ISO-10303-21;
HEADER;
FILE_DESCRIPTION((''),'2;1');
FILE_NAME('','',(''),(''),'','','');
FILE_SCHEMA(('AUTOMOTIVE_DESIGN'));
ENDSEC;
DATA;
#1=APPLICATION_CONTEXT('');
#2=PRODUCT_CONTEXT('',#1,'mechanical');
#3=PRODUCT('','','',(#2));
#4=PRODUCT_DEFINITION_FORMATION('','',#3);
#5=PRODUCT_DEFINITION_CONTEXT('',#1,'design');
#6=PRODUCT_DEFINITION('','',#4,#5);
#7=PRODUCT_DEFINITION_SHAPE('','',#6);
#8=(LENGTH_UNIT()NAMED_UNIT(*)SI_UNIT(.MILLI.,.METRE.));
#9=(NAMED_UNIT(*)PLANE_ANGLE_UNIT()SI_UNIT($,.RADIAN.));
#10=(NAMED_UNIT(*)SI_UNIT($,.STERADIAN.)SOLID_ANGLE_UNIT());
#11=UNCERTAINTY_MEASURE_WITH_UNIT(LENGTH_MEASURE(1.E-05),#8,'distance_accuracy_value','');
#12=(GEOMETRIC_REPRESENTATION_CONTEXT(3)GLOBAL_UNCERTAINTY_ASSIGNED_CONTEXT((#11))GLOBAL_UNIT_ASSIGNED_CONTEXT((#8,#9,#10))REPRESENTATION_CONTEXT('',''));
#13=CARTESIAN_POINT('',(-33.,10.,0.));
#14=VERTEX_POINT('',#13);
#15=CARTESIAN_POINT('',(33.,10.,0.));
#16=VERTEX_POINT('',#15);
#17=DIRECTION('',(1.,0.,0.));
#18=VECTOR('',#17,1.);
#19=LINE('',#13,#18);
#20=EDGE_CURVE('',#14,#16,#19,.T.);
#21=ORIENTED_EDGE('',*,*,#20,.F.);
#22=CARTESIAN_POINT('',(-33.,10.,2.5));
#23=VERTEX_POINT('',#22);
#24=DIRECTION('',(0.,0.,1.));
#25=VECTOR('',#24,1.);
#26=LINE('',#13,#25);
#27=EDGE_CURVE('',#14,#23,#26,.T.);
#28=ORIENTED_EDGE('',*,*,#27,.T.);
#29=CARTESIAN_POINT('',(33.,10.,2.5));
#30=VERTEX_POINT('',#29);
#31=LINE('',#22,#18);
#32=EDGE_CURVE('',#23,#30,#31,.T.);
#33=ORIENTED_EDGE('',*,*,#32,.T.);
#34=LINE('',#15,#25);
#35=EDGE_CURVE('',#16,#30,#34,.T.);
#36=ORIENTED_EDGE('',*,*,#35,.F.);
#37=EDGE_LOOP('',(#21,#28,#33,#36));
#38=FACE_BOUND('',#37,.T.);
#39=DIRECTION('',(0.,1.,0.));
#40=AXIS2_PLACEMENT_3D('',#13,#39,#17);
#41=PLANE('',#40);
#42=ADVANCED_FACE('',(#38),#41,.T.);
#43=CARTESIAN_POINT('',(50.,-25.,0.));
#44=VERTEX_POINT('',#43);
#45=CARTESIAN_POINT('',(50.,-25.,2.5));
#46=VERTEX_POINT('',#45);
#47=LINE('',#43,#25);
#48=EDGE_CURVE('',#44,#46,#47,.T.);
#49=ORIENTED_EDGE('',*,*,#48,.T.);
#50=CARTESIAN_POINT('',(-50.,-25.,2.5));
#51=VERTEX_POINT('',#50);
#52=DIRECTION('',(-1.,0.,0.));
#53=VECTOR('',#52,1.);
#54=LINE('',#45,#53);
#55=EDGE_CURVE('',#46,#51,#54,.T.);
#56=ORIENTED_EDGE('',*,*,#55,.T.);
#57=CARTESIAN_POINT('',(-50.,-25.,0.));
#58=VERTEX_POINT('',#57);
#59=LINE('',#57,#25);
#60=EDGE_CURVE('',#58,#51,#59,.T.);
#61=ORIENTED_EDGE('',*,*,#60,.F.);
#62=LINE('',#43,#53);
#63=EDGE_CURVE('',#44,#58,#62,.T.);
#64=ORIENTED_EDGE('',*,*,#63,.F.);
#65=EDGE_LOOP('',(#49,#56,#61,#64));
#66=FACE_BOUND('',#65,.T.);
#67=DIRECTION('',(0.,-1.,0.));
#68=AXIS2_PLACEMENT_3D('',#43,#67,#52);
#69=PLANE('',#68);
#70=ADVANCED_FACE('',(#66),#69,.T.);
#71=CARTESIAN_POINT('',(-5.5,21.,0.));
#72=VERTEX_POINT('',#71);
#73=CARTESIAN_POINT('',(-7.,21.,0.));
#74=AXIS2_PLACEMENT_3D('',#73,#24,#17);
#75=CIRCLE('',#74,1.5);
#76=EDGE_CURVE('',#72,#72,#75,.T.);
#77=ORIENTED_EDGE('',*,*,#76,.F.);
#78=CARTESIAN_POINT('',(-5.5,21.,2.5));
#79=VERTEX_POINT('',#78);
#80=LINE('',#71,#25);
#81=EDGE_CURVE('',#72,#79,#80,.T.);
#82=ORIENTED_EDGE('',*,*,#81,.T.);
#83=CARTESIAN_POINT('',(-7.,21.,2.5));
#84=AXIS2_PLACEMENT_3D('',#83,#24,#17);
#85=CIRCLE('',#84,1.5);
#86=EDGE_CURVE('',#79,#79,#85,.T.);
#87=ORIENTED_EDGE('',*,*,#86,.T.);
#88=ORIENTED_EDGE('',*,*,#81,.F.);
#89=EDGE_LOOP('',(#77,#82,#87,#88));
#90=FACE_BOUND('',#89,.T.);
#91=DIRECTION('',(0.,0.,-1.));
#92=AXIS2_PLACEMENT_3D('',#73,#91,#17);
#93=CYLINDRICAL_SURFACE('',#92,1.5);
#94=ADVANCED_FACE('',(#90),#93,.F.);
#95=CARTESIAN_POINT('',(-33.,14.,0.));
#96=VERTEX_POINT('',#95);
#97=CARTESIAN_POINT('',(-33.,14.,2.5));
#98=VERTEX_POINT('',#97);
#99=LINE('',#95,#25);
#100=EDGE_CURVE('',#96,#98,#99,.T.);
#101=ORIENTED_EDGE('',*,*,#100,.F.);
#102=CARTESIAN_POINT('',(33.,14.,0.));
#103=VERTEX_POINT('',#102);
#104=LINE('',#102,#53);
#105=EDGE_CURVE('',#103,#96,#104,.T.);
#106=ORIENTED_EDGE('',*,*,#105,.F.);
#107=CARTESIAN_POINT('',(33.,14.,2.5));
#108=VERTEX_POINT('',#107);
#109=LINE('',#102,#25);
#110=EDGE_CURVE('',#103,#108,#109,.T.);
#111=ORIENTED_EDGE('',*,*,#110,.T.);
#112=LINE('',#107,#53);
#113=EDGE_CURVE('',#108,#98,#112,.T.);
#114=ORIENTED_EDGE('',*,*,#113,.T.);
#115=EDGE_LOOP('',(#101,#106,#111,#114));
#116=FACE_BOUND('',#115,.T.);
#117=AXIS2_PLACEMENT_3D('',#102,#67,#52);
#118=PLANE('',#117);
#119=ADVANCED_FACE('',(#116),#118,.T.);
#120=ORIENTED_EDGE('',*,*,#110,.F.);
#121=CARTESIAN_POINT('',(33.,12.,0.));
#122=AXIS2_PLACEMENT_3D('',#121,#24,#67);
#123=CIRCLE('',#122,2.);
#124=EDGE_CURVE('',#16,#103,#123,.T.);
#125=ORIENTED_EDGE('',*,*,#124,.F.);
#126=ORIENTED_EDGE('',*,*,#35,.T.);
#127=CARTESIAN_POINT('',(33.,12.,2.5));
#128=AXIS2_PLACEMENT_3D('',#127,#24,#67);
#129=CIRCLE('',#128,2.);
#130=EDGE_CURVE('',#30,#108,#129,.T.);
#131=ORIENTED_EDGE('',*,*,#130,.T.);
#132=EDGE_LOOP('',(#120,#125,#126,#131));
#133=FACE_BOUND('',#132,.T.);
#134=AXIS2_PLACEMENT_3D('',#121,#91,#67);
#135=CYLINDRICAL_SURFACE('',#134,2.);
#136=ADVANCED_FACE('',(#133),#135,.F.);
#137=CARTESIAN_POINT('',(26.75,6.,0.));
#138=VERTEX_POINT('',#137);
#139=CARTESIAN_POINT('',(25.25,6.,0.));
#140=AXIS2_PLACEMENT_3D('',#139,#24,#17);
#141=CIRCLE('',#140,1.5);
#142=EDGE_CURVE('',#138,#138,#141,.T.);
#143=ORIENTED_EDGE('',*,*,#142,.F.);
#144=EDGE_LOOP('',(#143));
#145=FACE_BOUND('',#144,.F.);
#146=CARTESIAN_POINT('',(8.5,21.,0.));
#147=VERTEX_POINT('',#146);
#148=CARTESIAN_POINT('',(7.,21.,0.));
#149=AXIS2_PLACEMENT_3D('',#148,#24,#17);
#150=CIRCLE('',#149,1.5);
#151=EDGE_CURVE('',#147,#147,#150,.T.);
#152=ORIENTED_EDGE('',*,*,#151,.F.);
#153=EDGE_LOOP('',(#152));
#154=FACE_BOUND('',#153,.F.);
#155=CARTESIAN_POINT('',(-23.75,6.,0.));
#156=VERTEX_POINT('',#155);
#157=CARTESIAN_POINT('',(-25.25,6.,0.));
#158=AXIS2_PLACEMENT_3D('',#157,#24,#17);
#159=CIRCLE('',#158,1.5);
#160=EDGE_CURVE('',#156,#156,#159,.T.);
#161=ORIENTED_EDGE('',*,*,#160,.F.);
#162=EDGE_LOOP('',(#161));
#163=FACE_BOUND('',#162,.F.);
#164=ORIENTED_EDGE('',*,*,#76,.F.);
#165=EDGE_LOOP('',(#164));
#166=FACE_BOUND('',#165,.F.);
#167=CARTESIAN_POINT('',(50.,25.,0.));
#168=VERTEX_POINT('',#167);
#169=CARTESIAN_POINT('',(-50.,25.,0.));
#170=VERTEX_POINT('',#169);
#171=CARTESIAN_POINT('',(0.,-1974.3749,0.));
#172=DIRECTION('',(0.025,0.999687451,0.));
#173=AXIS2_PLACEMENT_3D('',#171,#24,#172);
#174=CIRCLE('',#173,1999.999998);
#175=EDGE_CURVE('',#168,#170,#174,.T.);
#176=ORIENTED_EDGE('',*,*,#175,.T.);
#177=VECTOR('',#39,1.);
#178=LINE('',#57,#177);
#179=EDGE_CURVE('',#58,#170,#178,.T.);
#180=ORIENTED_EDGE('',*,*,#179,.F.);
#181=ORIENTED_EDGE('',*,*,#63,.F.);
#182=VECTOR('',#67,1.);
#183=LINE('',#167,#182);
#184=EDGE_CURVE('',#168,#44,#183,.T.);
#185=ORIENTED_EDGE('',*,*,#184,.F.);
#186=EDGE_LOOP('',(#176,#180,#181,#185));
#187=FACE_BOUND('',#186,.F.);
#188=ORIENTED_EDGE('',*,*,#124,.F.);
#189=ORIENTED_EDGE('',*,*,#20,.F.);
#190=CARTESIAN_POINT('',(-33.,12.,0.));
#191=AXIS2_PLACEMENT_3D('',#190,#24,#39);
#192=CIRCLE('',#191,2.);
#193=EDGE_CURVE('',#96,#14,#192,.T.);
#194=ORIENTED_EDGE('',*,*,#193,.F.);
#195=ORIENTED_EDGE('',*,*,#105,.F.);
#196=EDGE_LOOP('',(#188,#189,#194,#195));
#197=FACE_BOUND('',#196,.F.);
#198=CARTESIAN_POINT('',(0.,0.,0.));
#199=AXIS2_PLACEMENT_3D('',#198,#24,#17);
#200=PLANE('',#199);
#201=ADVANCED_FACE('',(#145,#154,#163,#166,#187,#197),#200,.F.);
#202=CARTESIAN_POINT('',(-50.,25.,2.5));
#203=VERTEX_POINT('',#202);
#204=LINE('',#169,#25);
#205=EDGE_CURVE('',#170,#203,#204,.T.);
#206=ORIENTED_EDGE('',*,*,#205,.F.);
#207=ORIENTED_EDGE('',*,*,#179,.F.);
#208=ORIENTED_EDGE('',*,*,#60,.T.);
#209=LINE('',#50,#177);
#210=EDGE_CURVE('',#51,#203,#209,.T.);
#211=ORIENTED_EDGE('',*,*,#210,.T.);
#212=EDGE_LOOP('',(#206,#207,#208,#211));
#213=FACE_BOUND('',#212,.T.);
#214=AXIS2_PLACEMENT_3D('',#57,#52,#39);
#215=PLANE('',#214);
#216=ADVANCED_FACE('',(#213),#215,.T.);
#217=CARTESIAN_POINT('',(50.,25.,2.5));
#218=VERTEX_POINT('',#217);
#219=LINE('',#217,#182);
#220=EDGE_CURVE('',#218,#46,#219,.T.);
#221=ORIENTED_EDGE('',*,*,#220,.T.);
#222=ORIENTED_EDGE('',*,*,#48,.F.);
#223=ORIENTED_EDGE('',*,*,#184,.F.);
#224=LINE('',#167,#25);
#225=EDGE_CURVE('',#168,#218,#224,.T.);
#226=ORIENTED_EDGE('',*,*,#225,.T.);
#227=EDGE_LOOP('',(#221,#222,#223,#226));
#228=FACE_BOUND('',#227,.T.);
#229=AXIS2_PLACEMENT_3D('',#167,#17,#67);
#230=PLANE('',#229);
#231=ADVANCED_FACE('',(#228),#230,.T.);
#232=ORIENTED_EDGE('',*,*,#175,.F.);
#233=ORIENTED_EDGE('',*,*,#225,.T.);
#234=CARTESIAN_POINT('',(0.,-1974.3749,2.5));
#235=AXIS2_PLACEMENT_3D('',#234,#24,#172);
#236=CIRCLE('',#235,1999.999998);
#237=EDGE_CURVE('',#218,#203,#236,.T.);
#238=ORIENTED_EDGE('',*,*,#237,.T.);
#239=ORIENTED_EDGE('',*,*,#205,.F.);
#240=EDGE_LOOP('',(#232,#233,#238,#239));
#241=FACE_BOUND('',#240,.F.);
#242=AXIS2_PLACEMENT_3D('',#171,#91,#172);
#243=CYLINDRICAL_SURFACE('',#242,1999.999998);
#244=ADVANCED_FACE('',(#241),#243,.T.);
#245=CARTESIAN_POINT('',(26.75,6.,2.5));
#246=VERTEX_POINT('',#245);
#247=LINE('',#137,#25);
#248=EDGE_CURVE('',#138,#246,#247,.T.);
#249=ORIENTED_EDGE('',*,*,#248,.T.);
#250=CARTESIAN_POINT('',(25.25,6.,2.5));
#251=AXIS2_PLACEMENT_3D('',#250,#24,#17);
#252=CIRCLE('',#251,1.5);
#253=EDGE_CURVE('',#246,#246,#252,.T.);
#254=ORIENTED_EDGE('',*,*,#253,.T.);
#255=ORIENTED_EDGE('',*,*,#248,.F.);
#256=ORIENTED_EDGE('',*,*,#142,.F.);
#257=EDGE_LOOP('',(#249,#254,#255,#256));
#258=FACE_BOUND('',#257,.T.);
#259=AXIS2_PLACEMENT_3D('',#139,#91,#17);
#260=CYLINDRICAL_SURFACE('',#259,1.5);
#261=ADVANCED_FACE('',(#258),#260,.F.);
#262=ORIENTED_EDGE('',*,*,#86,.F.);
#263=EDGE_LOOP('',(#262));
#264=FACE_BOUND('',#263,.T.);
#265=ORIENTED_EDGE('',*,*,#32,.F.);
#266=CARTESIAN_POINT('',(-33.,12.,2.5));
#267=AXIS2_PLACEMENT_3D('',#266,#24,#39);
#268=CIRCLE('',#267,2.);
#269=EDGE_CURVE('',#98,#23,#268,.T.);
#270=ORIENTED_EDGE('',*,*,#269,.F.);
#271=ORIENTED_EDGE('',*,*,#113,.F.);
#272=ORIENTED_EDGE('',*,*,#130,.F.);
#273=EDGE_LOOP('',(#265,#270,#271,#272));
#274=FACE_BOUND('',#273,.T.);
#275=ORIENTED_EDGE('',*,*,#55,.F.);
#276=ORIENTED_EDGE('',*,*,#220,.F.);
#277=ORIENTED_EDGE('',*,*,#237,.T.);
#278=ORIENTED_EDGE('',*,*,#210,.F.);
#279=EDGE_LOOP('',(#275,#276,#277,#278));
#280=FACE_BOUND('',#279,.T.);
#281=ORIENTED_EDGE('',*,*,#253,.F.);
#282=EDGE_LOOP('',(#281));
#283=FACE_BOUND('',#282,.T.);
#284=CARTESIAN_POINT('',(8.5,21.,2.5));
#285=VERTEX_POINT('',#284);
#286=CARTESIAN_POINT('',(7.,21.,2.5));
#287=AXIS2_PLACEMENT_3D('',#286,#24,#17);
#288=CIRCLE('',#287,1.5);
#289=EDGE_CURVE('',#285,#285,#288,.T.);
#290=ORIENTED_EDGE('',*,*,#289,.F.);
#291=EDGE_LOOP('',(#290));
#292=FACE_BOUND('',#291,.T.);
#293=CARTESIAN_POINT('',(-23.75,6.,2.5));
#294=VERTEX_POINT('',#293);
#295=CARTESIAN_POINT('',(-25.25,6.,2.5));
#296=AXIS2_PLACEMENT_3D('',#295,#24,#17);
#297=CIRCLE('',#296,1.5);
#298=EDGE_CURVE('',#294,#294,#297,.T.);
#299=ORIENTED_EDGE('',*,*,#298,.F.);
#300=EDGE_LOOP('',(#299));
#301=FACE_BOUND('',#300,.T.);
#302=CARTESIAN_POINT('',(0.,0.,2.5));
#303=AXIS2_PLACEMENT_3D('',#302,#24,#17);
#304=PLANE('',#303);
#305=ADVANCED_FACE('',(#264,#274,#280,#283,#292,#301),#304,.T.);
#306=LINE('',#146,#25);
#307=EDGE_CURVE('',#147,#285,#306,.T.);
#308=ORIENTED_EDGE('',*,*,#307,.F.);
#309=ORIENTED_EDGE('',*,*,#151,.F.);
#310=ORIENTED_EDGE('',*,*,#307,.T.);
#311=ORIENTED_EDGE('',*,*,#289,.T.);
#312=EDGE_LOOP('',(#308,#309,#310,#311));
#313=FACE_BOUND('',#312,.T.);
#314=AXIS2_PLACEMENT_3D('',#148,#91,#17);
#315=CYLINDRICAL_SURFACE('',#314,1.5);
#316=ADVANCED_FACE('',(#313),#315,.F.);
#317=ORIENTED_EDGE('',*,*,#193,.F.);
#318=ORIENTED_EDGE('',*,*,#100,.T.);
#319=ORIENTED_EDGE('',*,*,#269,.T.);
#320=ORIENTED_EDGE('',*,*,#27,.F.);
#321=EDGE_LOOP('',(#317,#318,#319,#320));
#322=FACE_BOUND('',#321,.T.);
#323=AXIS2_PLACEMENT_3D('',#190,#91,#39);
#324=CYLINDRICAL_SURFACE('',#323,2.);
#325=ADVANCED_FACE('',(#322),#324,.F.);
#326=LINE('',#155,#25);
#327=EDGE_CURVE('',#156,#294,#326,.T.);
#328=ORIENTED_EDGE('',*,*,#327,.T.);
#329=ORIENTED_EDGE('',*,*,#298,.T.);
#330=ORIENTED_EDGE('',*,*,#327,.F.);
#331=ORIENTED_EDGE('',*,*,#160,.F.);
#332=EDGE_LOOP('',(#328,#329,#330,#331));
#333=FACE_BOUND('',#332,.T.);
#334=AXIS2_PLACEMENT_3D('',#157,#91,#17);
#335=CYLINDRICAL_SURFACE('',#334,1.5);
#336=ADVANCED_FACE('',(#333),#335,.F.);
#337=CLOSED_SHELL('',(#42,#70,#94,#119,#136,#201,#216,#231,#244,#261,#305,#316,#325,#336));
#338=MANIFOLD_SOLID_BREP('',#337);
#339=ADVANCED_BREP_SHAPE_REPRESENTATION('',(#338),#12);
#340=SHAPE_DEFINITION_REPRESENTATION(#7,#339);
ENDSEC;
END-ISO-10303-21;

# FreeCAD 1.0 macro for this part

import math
import FreeCAD as App
import Part
import Sketcher
from FreeCAD import Vector

doc = App.newDocument("Part")
body = doc.addObject("PartDesign::Body", "Body")

sketch1 = doc.addObject("Sketcher::SketchObject", "Sketch")
body.addObject(sketch1)
sketch1.AttachmentSupport = (doc.XY_Plane, [""])
sketch1.MapMode = "FlatFace"
sketch1.addGeometry([
    Part.ArcOfCircle(Part.Circle(Vector(0, -1974.4, 0), Vector(0, 0, 1), 2000), math.radians(88.57), math.radians(91.43)),
    Part.LineSegment(Vector(-50, 25, 0), Vector(-50, -25, 0)),
    Part.LineSegment(Vector(-50, -25, 0), Vector(50, -25, 0)),
    Part.LineSegment(Vector(50, -25, 0), Vector(50, 25, 0)),
    Part.Circle(Vector(7, 21, 0), Vector(0, 0, 1), 1.5),
    Part.Circle(Vector(-25.2, 6, 0), Vector(0, 0, 1), 1.5),
    Part.Circle(Vector(-7, 21, 0), Vector(0, 0, 1), 1.5),
    Part.LineSegment(Vector(33, 10, 0), Vector(-33, 10, 0)),
    Part.ArcOfCircle(Part.Circle(Vector(-33, 12, 0), Vector(0, 0, 1), 2), math.radians(90), math.radians(270)),
    Part.LineSegment(Vector(-33, 14, 0), Vector(33, 14, 0)),
    Part.ArcOfCircle(Part.Circle(Vector(33, 12, 0), Vector(0, 0, 1), 2), math.radians(-90), math.radians(90)),
    Part.Circle(Vector(25.2, 6, 0), Vector(0, 0, 1), 1.5),
], False)
sketch1.addConstraint([
    Sketcher.Constraint("Coincident", 0, 2, 1, 1),
    Sketcher.Constraint("Coincident", 1, 2, 2, 1),
    Sketcher.Constraint("Coincident", 2, 2, 3, 1),
    Sketcher.Constraint("Coincident", 3, 2, 0, 1),
    Sketcher.Constraint("Tangent", 7, 2, 8, 2),
    Sketcher.Constraint("Tangent", 8, 1, 9, 1),
    Sketcher.Constraint("Tangent", 9, 2, 10, 2),
    Sketcher.Constraint("Tangent", 10, 1, 7, 1),
    Sketcher.Constraint("Vertical", 1),
    Sketcher.Constraint("Horizontal", 2),
    Sketcher.Constraint("Vertical", 3),
    Sketcher.Constraint("Horizontal", 7),
    Sketcher.Constraint("Horizontal", 9),
    Sketcher.Constraint("Equal", 4, 5),
    Sketcher.Constraint("Equal", 5, 6),
    Sketcher.Constraint("Equal", 6, 11),
    Sketcher.Constraint("Symmetric", 1, 2, 3, 2, -1, 1),
    Sketcher.Constraint("Symmetric", 4, 3, 6, 3, -2),
    Sketcher.Constraint("Symmetric", 5, 3, 11, 3, -2),
    Sketcher.Constraint("PointOnObject", 0, 3, -2),
    Sketcher.Constraint("Diameter", 4, 3.0),
    Sketcher.Constraint("Radius", 0, 2000.0),
    Sketcher.Constraint("Radius", 8, 2.0),
    Sketcher.Constraint("DistanceX", 2, 1, 2, 2, 100.0),
    Sketcher.Constraint("DistanceX", 7, 2, 7, 1, 66.0),
    Sketcher.Constraint("DistanceY", 1, 2, 1, 1, 50.0),
    Sketcher.Constraint("DistanceY", -1, 1, 5, 3, 6.0),
    Sketcher.Constraint("DistanceY", -1, 1, 8, 1, 14.0),
    Sketcher.Constraint("DistanceX", 6, 3, 4, 3, 14.0),
    Sketcher.Constraint("DistanceY", 8, 3, 6, 3, 9.0),
    Sketcher.Constraint("DistanceX", 5, 3, 11, 3, 50.5),
    Sketcher.Constraint("DistanceX", 8, 3, -1, 1, 33.0),
])
pad1 = doc.addObject("PartDesign::Pad", "Pad")
body.addObject(pad1)
pad1.Profile = sketch1
pad1.Length = 2.5

doc.recompute()
